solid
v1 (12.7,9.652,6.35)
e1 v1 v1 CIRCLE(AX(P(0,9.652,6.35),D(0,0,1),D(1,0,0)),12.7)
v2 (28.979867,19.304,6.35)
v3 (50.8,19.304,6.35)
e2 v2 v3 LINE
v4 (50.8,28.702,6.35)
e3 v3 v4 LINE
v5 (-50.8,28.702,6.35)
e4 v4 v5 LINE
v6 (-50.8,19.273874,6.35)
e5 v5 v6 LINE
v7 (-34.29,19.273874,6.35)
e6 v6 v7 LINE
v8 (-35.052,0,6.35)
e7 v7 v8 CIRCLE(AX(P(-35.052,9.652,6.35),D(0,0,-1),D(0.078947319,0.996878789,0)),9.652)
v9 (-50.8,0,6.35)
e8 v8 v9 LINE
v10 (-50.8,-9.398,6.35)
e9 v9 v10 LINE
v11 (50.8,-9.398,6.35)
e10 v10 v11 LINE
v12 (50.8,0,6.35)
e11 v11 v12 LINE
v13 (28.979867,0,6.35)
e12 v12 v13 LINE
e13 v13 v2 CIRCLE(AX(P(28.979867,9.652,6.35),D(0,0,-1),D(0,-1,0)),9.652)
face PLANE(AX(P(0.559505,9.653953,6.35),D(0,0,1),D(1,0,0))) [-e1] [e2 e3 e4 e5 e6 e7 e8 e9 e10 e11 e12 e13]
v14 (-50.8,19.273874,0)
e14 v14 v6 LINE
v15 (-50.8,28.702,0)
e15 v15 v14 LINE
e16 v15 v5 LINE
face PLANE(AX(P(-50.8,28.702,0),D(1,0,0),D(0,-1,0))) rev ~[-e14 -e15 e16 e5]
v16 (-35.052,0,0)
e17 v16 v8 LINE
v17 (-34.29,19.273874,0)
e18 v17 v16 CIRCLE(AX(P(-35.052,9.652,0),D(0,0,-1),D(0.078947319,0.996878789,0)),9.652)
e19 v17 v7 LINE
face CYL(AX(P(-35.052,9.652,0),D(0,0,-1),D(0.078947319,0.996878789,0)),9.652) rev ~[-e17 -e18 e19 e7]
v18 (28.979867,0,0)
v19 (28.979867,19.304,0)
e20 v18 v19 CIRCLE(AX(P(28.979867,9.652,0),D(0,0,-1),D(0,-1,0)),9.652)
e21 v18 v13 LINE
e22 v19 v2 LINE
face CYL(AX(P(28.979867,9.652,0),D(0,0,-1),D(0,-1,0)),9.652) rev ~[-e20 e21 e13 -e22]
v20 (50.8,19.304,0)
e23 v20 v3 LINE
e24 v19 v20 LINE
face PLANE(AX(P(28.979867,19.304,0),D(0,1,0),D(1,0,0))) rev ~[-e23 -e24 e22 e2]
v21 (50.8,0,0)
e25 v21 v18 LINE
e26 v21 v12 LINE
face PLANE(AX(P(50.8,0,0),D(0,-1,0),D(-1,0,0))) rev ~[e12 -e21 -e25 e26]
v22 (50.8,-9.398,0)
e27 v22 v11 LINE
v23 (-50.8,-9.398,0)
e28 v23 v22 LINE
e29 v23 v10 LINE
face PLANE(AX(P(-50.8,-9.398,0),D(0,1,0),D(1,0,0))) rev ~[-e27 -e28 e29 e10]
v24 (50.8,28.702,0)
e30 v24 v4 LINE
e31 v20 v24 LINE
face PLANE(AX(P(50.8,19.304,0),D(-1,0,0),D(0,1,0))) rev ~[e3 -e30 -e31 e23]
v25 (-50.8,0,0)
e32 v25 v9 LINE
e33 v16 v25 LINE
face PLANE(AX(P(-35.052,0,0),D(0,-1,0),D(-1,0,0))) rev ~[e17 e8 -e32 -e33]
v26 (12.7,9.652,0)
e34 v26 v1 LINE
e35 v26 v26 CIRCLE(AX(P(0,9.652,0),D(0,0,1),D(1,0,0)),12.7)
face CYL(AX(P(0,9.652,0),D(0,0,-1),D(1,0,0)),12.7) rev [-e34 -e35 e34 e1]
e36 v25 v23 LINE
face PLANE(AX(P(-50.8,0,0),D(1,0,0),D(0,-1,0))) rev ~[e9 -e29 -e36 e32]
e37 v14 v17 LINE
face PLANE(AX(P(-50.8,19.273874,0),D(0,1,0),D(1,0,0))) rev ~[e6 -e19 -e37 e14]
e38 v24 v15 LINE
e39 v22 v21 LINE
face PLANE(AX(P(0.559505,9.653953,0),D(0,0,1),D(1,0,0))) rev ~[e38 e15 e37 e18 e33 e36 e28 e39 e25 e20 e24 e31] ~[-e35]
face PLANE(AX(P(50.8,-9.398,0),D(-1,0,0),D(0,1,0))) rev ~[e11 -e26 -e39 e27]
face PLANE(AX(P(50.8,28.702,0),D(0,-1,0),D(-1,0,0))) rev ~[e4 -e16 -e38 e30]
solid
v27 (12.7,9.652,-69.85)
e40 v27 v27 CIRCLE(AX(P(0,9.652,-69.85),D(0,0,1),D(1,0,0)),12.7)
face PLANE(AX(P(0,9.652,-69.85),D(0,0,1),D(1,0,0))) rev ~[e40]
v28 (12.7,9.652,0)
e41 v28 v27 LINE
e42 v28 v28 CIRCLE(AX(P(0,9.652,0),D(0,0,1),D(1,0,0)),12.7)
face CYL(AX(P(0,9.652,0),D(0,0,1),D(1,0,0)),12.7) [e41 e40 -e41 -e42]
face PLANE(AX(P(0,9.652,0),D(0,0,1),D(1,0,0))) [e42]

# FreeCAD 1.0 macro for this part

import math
import FreeCAD as App
import Part
import Sketcher
from FreeCAD import Vector
Q = App.Units.Quantity

doc = App.newDocument("Part")
body = doc.addObject("PartDesign::Body", "Body")
body.AllowCompound = True

# Sketch on XY plane
sketch1 = body.newObject("Sketcher::SketchObject", "Sketch")
sketch1.AttachmentSupport = (doc.getObject("XY_Plane"), [""])
sketch1.MapMode = "FlatFace"
sketch1.addGeometry([
    Part.LineSegment(Vector(-51, 29, 0), Vector(-51, 19, 0)),  # 0
    Part.LineSegment(Vector(-51, 19, 0), Vector(-34, 19, 0)),  # 1
    Part.ArcOfCircle(Part.Circle(Vector(-35, 10, 0), Vector(0, 0, 1), 10), math.radians(-90), math.radians(85)),  # 2
    Part.LineSegment(Vector(-35, 0, 0), Vector(-51, 0, 0)),  # 3
    Part.LineSegment(Vector(-51, 0, 0), Vector(-51, -9, 0)),  # 4
    Part.LineSegment(Vector(-51, -9, 0), Vector(51, -9, 0)),  # 5
    Part.LineSegment(Vector(51, -9, 0), Vector(51, 0, 0)),  # 6
    Part.LineSegment(Vector(51, 0, 0), Vector(29, 0, 0)),  # 7
    Part.ArcOfCircle(Part.Circle(Vector(29, 10, 0), Vector(0, 0, 1), 10), math.radians(90), math.radians(270)),  # 8
    Part.LineSegment(Vector(29, 19, 0), Vector(51, 19, 0)),  # 9
    Part.LineSegment(Vector(51, 19, 0), Vector(51, 29, 0)),  # 10
    Part.LineSegment(Vector(51, 29, 0), Vector(-51, 29, 0)),  # 11
    Part.Circle(Vector(0, 10, 0), Vector(0, 0, 1), 13),  # 12
], False)
sketch1.addConstraint([
    Sketcher.Constraint("Coincident", 0, 2, 1, 1),
    Sketcher.Constraint("Coincident", 1, 2, 2, 2),
    Sketcher.Constraint("Tangent", 2, 1, 3, 1),
    Sketcher.Constraint("Coincident", 3, 2, 4, 1),
    Sketcher.Constraint("Coincident", 4, 2, 5, 1),
    Sketcher.Constraint("Coincident", 5, 2, 6, 1),
    Sketcher.Constraint("Coincident", 6, 2, 7, 1),
    Sketcher.Constraint("Tangent", 7, 2, 8, 2),
    Sketcher.Constraint("Tangent", 8, 1, 9, 1),
    Sketcher.Constraint("Coincident", 9, 2, 10, 1),
    Sketcher.Constraint("Coincident", 10, 2, 11, 1),
    Sketcher.Constraint("Coincident", 11, 2, 0, 1),
    Sketcher.Constraint("Vertical", 0),
    Sketcher.Constraint("Horizontal", 1),
    Sketcher.Constraint("Horizontal", 3),
    Sketcher.Constraint("Vertical", 4),
    Sketcher.Constraint("Horizontal", 5),
    Sketcher.Constraint("Vertical", 6),
    Sketcher.Constraint("Horizontal", 7),
    Sketcher.Constraint("Horizontal", 9),
    Sketcher.Constraint("Vertical", 10),
    Sketcher.Constraint("Horizontal", 11),
    Sketcher.Constraint("Equal", 2, 8),
    Sketcher.Constraint("Symmetric", 3, 2, 6, 2, -1, 1),
    Sketcher.Constraint("PointOnObject", 12, 3, -2),
    Sketcher.Constraint("PointOnObject", 2, 1, -1),
    Sketcher.Constraint("Horizontal", 8, 3, 12, 3),
    Sketcher.Constraint("Vertical", 0, 2, 3, 2),
    Sketcher.Constraint("Vertical", 6, 2, 9, 2),
    Sketcher.Constraint("Equal", 6, 10),
    Sketcher.Constraint("Diameter", 12, Q("1 in")),
    Sketcher.Constraint("DistanceX", 5, 1, 5, 2, Q("4 in")),
    Sketcher.Constraint("Radius", 2, Q("0.38 in")),
    Sketcher.Constraint("DistanceX", 1, 1, 1, 2, Q("0.65 in")),
    Sketcher.Constraint("DistanceX", 3, 2, 3, 1, Q("0.62 in")),
    Sketcher.Constraint("DistanceY", 4, 2, 4, 1, Q("0.37 in")),
    Sketcher.Constraint("DistanceX", 7, 2, 7, 1, 21.820133),
])
pad1 = body.newObject("PartDesign::Pad", "Pad")
pad1.Profile = sketch1
pad1.Length = Q("0.25 in")

# Sketch on XY plane
sketch2 = body.newObject("Sketcher::SketchObject", "Sketch001")
sketch2.AttachmentSupport = (doc.getObject("XY_Plane"), [""])
sketch2.MapMode = "FlatFace"
sketch2.addGeometry(Part.Circle(Vector(0, 10, 0), Vector(0, 0, 1), 13), False)
sketch2.addConstraint([
    Sketcher.Constraint("PointOnObject", 0, 3, -2),
    Sketcher.Constraint("Diameter", 0, Q("1 in")),
    Sketcher.Constraint("DistanceY", -1, 1, 0, 3, Q("0.38 in")),
])
pad2 = body.newObject("PartDesign::Pad", "Pad001")
pad2.Profile = sketch2
pad2.Length = Q("2.75 in")
pad2.Reversed = True

doc.recompute()
